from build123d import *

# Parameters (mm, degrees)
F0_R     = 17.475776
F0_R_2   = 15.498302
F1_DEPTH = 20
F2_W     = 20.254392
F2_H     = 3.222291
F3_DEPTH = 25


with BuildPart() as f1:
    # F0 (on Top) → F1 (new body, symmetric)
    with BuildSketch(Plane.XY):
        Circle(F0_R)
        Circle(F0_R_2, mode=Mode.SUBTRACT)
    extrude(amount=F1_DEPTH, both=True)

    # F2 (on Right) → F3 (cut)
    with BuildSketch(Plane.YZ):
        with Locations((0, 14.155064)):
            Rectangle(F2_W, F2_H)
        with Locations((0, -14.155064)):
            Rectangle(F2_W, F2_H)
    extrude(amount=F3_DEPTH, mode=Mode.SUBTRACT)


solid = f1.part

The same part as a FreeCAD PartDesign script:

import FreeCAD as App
import Part
import Sketcher

V = App.Vector
Q = App.Units.Quantity

doc = App.newDocument("Part")
body = doc.addObject("PartDesign::Body", "Body")

# Sketch on XY plane
sketch1 = body.newObject("Sketcher::SketchObject", "Sketch")
sketch1.AttachmentSupport = (doc.getObject("XY_Plane"), [""])
sketch1.MapMode = "FlatFace"
sketch1.addGeometry([
    Part.Circle(V(0, 0, 0), V(0, 0, 1), 17),
    Part.Circle(V(0, 0, 0), V(0, 0, 1), 15),
], False)
sketch1.addConstraint([
    Sketcher.Constraint("Coincident", 0, 3, -1, 1),
    Sketcher.Constraint("Coincident", 1, 3, -1, 1),
    Sketcher.Constraint("Diameter", 0, Q("34.951552 mm")),
    Sketcher.Constraint("Diameter", 1, Q("30.996604 mm")),
])
pad1 = body.newObject("PartDesign::Pad", "Pad")
pad1.Profile = sketch1
pad1.Length = 40
pad1.Midplane = True

# Sketch on YZ plane
sketch2 = body.newObject("Sketcher::SketchObject", "Sketch001")
sketch2.AttachmentSupport = (doc.getObject("YZ_Plane"), [""])
sketch2.MapMode = "FlatFace"
sketch2.addGeometry([
    Part.LineSegment(V(-10.1, 15.8, 0), V(-10.1, 12.5, 0)),  # 0
    Part.LineSegment(V(-10.1, 12.5, 0), V(10.1, 12.5, 0)),  # 1
    Part.LineSegment(V(10.1, 12.5, 0), V(10.1, 15.8, 0)),  # 2
    Part.LineSegment(V(10.1, 15.8, 0), V(-10.1, 15.8, 0)),  # 3
    Part.LineSegment(V(-10.1, -12.5, 0), V(-10.1, -15.8, 0)),  # 4
    Part.LineSegment(V(-10.1, -15.8, 0), V(10.1, -15.8, 0)),  # 5
    Part.LineSegment(V(10.1, -15.8, 0), V(10.1, -12.5, 0)),  # 6
    Part.LineSegment(V(10.1, -12.5, 0), V(-10.1, -12.5, 0)),  # 7
], False)
sketch2.addConstraint([
    Sketcher.Constraint("Coincident", 0, 2, 1, 1),
    Sketcher.Constraint("Coincident", 1, 2, 2, 1),
    Sketcher.Constraint("Coincident", 2, 2, 3, 1),
    Sketcher.Constraint("Coincident", 3, 2, 0, 1),
    Sketcher.Constraint("Coincident", 4, 2, 5, 1),
    Sketcher.Constraint("Coincident", 5, 2, 6, 1),
    Sketcher.Constraint("Coincident", 6, 2, 7, 1),
    Sketcher.Constraint("Coincident", 7, 2, 4, 1),
    Sketcher.Constraint("Vertical", 0),
    Sketcher.Constraint("Horizontal", 1),
    Sketcher.Constraint("Vertical", 2),
    Sketcher.Constraint("Horizontal", 3),
    Sketcher.Constraint("Vertical", 4),
    Sketcher.Constraint("Horizontal", 5),
    Sketcher.Constraint("Vertical", 6),
    Sketcher.Constraint("Horizontal", 7),
    Sketcher.Constraint("Symmetric", 2, 2, 4, 2, -1, 1),
    Sketcher.Constraint("Symmetric", 0, 2, 6, 2, -1, 1),
    Sketcher.Constraint("Vertical", 3, 2, 4, 2),
    Sketcher.Constraint("DistanceX", 1, 1, 1, 2, Q("20.254392 mm")),
    Sketcher.Constraint("DistanceY", 0, 2, 0, 1, Q("3.222291 mm")),
    Sketcher.Constraint("DistanceY", -1, 1, 0, 2, Q("12.543919 mm")),
])
pocket1 = body.newObject("PartDesign::Pocket", "Pocket")
pocket1.Profile = sketch2
pocket1.Length = 25
pocket1.Reversed = True

doc.recompute()
